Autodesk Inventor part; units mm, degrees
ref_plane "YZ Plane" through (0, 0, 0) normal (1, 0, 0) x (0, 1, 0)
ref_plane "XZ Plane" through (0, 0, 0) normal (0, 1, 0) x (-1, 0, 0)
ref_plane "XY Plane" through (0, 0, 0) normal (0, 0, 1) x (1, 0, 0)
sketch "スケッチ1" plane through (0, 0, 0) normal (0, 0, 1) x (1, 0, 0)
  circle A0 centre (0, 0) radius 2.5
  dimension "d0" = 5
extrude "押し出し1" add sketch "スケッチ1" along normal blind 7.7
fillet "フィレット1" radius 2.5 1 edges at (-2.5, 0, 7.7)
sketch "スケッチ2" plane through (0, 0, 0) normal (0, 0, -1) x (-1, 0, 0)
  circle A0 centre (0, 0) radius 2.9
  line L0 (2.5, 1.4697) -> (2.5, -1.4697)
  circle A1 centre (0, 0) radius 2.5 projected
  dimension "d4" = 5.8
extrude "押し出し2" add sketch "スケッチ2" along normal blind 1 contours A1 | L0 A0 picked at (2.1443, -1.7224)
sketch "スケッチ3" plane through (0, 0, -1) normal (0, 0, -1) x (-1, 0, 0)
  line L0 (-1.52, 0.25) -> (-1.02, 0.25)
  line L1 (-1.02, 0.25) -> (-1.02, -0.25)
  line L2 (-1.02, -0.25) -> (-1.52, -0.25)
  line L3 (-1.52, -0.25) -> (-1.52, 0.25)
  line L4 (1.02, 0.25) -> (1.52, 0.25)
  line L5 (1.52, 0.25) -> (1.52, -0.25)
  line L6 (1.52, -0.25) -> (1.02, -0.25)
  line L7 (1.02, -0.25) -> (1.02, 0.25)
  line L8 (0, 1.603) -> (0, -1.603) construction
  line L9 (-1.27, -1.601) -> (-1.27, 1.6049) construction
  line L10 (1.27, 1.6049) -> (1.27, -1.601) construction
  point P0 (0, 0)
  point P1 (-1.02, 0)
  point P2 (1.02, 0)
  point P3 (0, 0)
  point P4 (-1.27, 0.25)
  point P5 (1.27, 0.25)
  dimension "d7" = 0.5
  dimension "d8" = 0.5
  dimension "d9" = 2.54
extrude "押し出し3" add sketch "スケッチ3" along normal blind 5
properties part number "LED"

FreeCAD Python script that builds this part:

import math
import FreeCAD as App
import Part
import Sketcher
from FreeCAD import Vector
Q = App.Units.Quantity


def edges_at(feature, points):
    """Names of the edges that pass closest to the given points."""
    edges = feature.Shape.Edges
    near = lambda p: min(range(len(edges)), key=lambda i: edges[i].distToShape(Part.Vertex(*p))[0])
    return sorted({f"Edge{near(p) + 1}" for p in points})


def add_polygon(sketch, points):
    """Adds a closed chain of lines whose ends are joined by coincident constraints."""
    first, n = sketch.GeometryCount, len(points)
    for a, b in zip(points, points[1:] + points[:1]):
        sketch.addGeometry(Part.LineSegment(App.Vector(*a, 0), App.Vector(*b, 0)), False)
    for i in range(n):
        sketch.addConstraint(Sketcher.Constraint("Coincident", first + i, 2, first + (i + 1) % n, 1))

doc = App.newDocument("Part")
body = doc.addObject("PartDesign::Body", "Body")

# Sketch on XY plane
sketch1 = doc.addObject("Sketcher::SketchObject", "Sketch")
body.addObject(sketch1)
sketch1.AttachmentSupport = (doc.XY_Plane, [""])
sketch1.MapMode = "FlatFace"
sketch1.addGeometry(Part.Circle(Vector(0, 0, 0), Vector(0, 0, 1), 2.5), False)
sketch1.addConstraint(Sketcher.Constraint("Coincident", 0, 3, -1, 1))
sketch1.addConstraint(Sketcher.Constraint("Diameter", 0, Q("5 mm")))
pad1 = doc.addObject("PartDesign::Pad", "Pad")
body.addObject(pad1)
pad1.Profile = sketch1
pad1.Length = 7.7
doc.recompute()

fillet = doc.addObject("PartDesign::Fillet", "Fillet")
body.addObject(fillet)
fillet.Base = (pad1, edges_at(pad1, [(-2.5, 0, 7.7)]))
fillet.Radius = 2.5

# Sketch on XY plane
sketch2 = doc.addObject("Sketcher::SketchObject", "Sketch001")
body.addObject(sketch2)
sketch2.AttachmentSupport = (doc.XY_Plane, [""])
sketch2.MapMode = "FlatFace"
sketch2.addGeometry(Part.ArcOfCircle(Part.Circle(Vector(0, 0, 0), Vector(0, 0, 1), 2.9), math.radians(-150), math.radians(150)), False)
sketch2.addGeometry(Part.LineSegment(Vector(-2.5, 1.5, 0), Vector(-2.5, -1.5, 0)), False)
sketch2.addConstraint(Sketcher.Constraint("Coincident", 0, 1, 1, 2))
sketch2.addConstraint(Sketcher.Constraint("Coincident", 1, 1, 0, 2))
sketch2.addConstraint(Sketcher.Constraint("Vertical", 1))
sketch2.addConstraint(Sketcher.Constraint("Coincident", 0, 3, -1, 1))
sketch2.addConstraint(Sketcher.Constraint("Radius", 0, Q("2.9 mm")))
sketch2.addConstraint(Sketcher.Constraint("DistanceX", 0, 1, -1, 1, Q("2.5 mm")))
pad2 = doc.addObject("PartDesign::Pad", "Pad001")
body.addObject(pad2)
pad2.Profile = sketch2
pad2.Length = 1
pad2.Reversed = True

# Sketch on XY plane
sketch3 = doc.addObject("Sketcher::SketchObject", "Sketch002")
body.addObject(sketch3)
sketch3.AttachmentSupport = (doc.XY_Plane, [""])
sketch3.MapMode = "FlatFace"
sketch3.AttachmentOffset = App.Placement(Vector(0, 0, -1), App.Rotation())
add_polygon(sketch3, [(1, 0.2), (1.5, 0.2), (1.5, -0.2), (1, -0.2)])  # lines 0-3
add_polygon(sketch3, [(-1.5, 0.2), (-1, 0.2), (-1, -0.2), (-1.5, -0.2)])  # lines 4-7
sketch3.addConstraint(Sketcher.Constraint("Horizontal", 0))
sketch3.addConstraint(Sketcher.Constraint("Vertical", 1))
sketch3.addConstraint(Sketcher.Constraint("Horizontal", 2))
sketch3.addConstraint(Sketcher.Constraint("Vertical", 3))
sketch3.addConstraint(Sketcher.Constraint("Horizontal", 4))
sketch3.addConstraint(Sketcher.Constraint("Vertical", 5))
sketch3.addConstraint(Sketcher.Constraint("Horizontal", 6))
sketch3.addConstraint(Sketcher.Constraint("Vertical", 7))
sketch3.addConstraint(Sketcher.Constraint("Symmetric", 2, 2, 4, 2, -1, 1))
sketch3.addConstraint(Sketcher.Constraint("Symmetric", 0, 2, 6, 2, -1, 1))
sketch3.addConstraint(Sketcher.Constraint("Horizontal", 3, 2, 4, 2))
sketch3.addConstraint(Sketcher.Constraint("Equal", 6, 1))
sketch3.addConstraint(Sketcher.Constraint("DistanceX", 0, 1, 0, 2, Q("0.5 mm")))
sketch3.addConstraint(Sketcher.Constraint("DistanceX", 4, 2, 0, 2, Q("2.54 mm")))
pad3 = doc.addObject("PartDesign::Pad", "Pad002")
body.addObject(pad3)
pad3.Profile = sketch3
pad3.Length = 5
pad3.Reversed = True

doc.recompute()
